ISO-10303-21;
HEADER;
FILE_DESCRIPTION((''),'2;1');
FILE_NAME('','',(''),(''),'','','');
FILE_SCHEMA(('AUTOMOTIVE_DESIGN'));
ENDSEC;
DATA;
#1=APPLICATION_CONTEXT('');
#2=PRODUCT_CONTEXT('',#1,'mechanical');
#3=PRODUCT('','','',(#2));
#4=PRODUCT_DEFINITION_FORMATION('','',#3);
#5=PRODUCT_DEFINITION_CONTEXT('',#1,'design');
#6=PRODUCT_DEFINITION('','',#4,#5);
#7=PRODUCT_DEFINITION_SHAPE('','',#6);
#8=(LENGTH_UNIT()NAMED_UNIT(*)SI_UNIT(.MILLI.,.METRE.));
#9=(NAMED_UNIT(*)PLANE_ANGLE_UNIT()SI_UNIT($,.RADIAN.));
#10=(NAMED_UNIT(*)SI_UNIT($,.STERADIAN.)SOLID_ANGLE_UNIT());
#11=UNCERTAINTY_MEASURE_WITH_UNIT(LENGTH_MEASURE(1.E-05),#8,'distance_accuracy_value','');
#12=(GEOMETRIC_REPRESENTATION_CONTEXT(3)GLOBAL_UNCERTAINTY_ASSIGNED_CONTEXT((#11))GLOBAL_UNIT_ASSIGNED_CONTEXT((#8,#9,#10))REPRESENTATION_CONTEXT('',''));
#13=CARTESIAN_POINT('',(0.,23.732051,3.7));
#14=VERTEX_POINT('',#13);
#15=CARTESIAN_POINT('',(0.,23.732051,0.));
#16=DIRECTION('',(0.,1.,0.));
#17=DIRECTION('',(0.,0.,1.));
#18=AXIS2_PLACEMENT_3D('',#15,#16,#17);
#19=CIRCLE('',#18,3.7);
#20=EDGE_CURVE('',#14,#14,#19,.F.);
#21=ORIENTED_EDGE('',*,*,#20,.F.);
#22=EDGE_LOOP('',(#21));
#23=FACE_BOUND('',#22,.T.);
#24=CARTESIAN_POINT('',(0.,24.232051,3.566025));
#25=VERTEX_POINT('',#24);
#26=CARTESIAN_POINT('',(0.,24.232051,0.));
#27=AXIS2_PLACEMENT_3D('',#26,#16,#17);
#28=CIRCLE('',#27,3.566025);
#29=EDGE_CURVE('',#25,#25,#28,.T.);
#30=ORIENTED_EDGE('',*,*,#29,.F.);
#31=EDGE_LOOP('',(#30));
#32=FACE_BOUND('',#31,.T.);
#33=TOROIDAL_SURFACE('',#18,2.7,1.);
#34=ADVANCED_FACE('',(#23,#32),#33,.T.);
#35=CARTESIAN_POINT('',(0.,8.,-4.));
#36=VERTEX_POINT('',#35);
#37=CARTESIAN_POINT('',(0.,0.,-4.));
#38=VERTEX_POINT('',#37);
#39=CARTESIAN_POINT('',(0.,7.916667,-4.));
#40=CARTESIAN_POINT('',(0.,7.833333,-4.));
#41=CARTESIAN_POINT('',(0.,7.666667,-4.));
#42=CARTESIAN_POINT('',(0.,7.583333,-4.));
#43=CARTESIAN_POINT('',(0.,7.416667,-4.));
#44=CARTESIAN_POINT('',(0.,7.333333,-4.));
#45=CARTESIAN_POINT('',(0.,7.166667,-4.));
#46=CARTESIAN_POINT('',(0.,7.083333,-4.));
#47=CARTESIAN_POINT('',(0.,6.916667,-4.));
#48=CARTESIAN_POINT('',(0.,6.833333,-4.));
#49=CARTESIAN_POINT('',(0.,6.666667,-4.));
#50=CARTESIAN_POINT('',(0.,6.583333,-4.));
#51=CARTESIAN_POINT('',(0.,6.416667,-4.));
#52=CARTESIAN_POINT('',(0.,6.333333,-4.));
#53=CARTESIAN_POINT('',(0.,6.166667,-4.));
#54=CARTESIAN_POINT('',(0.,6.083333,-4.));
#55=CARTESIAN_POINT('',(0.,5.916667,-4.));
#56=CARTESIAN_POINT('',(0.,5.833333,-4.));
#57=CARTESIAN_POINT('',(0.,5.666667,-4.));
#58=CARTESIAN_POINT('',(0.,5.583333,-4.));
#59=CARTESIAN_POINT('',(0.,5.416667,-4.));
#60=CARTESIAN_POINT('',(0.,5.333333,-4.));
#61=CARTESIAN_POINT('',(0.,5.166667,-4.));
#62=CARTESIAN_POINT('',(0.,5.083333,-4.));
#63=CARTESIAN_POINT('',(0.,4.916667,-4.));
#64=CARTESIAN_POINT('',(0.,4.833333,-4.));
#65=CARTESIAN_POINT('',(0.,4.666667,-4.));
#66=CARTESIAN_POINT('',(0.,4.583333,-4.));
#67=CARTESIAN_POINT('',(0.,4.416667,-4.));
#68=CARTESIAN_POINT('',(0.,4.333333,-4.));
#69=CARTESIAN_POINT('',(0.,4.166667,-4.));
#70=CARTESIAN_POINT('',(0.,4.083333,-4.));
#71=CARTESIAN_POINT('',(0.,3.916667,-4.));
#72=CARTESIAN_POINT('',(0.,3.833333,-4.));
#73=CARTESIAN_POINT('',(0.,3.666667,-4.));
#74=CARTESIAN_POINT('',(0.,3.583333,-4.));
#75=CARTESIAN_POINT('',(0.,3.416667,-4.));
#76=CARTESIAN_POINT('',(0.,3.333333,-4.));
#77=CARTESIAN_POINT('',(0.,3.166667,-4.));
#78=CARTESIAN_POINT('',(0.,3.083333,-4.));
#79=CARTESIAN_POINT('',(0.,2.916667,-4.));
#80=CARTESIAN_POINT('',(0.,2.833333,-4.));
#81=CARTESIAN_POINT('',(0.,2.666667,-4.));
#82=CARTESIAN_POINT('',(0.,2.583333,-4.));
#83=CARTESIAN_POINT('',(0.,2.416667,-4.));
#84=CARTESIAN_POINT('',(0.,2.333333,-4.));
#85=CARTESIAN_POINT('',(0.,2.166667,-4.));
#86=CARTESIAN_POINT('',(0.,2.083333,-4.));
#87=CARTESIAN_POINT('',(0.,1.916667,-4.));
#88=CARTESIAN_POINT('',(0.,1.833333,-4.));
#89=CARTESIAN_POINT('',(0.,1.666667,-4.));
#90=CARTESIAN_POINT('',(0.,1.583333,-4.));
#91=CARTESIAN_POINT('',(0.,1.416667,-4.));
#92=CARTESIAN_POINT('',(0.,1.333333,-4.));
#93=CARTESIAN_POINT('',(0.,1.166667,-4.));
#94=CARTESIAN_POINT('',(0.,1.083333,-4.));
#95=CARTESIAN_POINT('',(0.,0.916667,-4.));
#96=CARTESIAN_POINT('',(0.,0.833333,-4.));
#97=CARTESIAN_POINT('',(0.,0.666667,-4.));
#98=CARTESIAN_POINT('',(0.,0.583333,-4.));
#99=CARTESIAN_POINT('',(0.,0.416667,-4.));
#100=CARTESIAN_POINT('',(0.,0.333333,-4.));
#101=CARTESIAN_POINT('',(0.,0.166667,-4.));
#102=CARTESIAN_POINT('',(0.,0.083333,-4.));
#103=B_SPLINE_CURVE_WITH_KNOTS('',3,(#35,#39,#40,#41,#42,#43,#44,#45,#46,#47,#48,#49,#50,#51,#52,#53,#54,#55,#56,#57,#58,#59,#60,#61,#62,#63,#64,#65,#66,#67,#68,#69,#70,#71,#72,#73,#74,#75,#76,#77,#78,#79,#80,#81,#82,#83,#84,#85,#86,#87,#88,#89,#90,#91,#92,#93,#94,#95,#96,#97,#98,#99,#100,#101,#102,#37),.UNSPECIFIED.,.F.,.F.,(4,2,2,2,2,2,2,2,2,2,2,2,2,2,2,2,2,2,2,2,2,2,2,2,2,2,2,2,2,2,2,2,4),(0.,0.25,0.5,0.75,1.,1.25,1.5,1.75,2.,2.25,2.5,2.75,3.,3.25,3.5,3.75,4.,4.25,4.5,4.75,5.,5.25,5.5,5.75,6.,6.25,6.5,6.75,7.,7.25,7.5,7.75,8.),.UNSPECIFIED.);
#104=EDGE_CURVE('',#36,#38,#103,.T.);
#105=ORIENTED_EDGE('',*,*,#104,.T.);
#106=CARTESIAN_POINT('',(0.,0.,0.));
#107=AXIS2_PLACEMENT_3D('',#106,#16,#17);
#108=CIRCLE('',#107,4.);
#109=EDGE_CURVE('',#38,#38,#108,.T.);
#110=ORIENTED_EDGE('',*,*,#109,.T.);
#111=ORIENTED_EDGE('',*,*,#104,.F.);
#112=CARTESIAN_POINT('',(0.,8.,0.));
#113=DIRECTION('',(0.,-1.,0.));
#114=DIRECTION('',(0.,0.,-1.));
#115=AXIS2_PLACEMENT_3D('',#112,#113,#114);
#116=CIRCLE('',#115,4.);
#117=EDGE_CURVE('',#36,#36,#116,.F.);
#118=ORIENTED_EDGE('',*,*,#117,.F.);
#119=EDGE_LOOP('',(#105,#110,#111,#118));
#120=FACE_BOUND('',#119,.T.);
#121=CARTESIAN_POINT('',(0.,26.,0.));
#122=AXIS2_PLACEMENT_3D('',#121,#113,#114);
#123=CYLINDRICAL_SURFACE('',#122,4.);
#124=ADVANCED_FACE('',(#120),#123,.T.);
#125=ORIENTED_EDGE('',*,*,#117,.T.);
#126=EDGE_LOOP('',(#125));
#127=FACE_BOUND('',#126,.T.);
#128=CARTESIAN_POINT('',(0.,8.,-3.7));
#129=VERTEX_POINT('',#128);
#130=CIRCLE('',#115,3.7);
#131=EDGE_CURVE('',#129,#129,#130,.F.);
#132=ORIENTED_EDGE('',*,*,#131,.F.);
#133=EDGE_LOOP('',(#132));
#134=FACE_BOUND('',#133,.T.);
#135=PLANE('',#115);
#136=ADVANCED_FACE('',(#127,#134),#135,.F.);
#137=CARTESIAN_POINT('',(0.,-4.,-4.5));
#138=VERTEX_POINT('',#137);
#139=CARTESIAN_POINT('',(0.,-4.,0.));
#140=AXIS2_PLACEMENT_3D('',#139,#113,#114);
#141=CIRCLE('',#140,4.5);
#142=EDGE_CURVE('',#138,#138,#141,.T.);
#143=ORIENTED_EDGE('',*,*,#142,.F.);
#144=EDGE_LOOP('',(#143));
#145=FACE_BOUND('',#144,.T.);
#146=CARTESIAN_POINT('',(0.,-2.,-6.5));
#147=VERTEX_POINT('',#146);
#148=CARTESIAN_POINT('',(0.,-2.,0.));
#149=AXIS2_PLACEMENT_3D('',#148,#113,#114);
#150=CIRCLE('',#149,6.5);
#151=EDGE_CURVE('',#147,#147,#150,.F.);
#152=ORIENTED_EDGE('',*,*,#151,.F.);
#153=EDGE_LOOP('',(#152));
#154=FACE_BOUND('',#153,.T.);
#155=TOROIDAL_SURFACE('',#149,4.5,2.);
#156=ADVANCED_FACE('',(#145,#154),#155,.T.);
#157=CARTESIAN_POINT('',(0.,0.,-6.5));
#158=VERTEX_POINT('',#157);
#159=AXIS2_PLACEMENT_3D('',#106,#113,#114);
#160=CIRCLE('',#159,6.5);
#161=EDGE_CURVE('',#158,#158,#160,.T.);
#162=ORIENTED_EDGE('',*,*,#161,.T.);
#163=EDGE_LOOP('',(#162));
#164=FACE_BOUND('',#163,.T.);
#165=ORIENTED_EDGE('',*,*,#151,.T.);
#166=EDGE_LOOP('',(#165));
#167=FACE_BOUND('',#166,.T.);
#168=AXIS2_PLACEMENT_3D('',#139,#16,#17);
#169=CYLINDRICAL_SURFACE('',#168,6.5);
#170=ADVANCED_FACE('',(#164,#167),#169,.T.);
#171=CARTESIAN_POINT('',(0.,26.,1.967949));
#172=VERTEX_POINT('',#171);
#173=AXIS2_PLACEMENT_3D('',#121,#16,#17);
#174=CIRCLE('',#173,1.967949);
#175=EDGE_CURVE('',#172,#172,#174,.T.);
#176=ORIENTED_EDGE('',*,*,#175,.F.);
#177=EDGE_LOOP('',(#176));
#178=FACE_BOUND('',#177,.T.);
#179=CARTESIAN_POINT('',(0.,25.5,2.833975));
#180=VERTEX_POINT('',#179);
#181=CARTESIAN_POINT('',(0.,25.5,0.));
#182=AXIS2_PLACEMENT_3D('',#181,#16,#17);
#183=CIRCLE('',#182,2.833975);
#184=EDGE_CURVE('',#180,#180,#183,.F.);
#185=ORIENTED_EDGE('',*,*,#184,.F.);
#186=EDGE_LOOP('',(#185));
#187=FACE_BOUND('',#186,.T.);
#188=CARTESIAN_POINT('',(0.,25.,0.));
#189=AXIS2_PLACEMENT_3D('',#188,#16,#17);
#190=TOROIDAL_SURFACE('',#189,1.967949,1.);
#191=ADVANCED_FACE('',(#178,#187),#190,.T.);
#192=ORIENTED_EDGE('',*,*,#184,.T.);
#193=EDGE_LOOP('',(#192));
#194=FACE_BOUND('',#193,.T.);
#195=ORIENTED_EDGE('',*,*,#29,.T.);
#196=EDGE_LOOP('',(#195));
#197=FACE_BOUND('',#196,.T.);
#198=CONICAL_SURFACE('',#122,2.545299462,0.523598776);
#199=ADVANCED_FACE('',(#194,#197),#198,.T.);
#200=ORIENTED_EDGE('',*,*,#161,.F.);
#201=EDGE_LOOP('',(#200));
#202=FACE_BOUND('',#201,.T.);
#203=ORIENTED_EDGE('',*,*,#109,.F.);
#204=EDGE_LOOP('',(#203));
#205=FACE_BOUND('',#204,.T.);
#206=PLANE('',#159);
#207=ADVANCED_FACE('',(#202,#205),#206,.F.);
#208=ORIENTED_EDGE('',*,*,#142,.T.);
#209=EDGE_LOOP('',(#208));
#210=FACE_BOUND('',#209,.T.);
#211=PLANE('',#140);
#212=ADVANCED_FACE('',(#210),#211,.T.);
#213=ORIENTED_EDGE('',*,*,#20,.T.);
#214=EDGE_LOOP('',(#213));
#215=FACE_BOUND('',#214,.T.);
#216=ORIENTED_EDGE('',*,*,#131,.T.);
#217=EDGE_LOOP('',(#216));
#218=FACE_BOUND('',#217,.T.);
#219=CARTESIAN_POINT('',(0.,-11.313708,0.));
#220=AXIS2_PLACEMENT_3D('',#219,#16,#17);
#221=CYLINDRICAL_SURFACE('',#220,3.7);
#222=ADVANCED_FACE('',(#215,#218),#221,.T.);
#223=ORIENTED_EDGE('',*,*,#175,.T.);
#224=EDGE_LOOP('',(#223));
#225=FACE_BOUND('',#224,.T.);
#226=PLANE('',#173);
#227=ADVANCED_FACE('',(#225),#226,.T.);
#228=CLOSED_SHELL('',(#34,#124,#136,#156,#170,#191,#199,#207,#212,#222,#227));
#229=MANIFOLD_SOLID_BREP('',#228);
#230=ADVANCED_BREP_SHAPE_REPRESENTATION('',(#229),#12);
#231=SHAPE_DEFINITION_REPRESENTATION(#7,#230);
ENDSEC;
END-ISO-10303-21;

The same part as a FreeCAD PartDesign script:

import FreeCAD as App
import Part
import Sketcher

V = App.Vector
Q = App.Units.Quantity


def edges_at(feature, points):
    """Names of the edges that pass closest to the given points."""
    edges = feature.Shape.Edges
    near = lambda p: min(range(len(edges)), key=lambda i: edges[i].distToShape(Part.Vertex(*p))[0])
    return sorted({f"Edge{near(p) + 1}" for p in points})

doc = App.newDocument("Part")
body = doc.addObject("PartDesign::Body", "Body")

sketch1 = doc.addObject("Sketcher::SketchObject", "Sketch")
body.addObject(sketch1)
sketch1.AttachmentSupport = (doc.XZ_Plane, [""])
sketch1.MapMode = "FlatFace"
sketch1.addGeometry(Part.Circle(V(0, 0, 0), V(0, 0, 1), 4), False)
sketch1.addConstraint([
    Sketcher.Constraint("Coincident", 0, 3, -1, 1),
    Sketcher.Constraint("Diameter", 0, Q("8 mm")),
])
pad1 = doc.addObject("PartDesign::Pad", "Pad")
body.addObject(pad1)
pad1.Profile = sketch1
pad1.Length = 26
pad1.Reversed = True

sketch2 = doc.addObject("Sketcher::SketchObject", "Sketch001")
body.addObject(sketch2)
sketch2.AttachmentSupport = (doc.XZ_Plane, [""])
sketch2.MapMode = "FlatFace"
sketch2.addGeometry(Part.Circle(V(0, 0, 0), V(0, 0, 1), 6), False)
sketch2.addConstraint([
    Sketcher.Constraint("Coincident", 0, 3, -1, 1),
    Sketcher.Constraint("Diameter", 0, Q("13 mm")),
])
pad2 = doc.addObject("PartDesign::Pad", "Pad001")
body.addObject(pad2)
pad2.Profile = sketch2
pad2.Length = 4

sketch3 = doc.addObject("Sketcher::SketchObject", "Sketch002")
body.addObject(sketch3)
sketch3.AttachmentSupport = (doc.XZ_Plane, [""])
sketch3.MapMode = "FlatFace"
sketch3.AttachmentOffset = App.Placement(V(0, 0, -8), App.Rotation())
sketch3.addGeometry([
    Part.Circle(V(0, 0, 0), V(0, 0, 1), 4),
    Part.Circle(V(0, 0, 0), V(0, 0, 1), 3.7),
], False)
sketch3.addConstraint([
    Sketcher.Constraint("Coincident", 0, 3, -1, 1),
    Sketcher.Constraint("Coincident", 1, 3, -1, 1),
    Sketcher.Constraint("Diameter", 0, Q("8 mm")),
    Sketcher.Constraint("Diameter", 1, Q("7.4 mm")),
])
pocket1 = doc.addObject("PartDesign::Pocket", "Pocket")
body.addObject(pocket1)
pocket1.Profile = sketch3
pocket1.Length = 18
doc.recompute()

fillet = doc.addObject("PartDesign::Fillet", "Fillet")
body.addObject(fillet)
fillet.Base = (pocket1, edges_at(pocket1, [(0, -4, 6.5)]))
fillet.Radius = 2
doc.recompute()

chamfer = doc.addObject("PartDesign::Chamfer", "Chamfer")
body.addObject(chamfer)
chamfer.Base = (fillet, edges_at(fillet, [(0, 26, -3.7)]))
chamfer.ChamferType = "Two distances"
chamfer.Size = 2
chamfer.Size2 = 1.154701
doc.recompute()

fillet2 = doc.addObject("PartDesign::Fillet", "Fillet001")
body.addObject(fillet2)
fillet2.Base = (chamfer, edges_at(chamfer, [(0, 26, -2.545), (0, 24, -3.7)]))
fillet2.Radius = 1

doc.recompute()
